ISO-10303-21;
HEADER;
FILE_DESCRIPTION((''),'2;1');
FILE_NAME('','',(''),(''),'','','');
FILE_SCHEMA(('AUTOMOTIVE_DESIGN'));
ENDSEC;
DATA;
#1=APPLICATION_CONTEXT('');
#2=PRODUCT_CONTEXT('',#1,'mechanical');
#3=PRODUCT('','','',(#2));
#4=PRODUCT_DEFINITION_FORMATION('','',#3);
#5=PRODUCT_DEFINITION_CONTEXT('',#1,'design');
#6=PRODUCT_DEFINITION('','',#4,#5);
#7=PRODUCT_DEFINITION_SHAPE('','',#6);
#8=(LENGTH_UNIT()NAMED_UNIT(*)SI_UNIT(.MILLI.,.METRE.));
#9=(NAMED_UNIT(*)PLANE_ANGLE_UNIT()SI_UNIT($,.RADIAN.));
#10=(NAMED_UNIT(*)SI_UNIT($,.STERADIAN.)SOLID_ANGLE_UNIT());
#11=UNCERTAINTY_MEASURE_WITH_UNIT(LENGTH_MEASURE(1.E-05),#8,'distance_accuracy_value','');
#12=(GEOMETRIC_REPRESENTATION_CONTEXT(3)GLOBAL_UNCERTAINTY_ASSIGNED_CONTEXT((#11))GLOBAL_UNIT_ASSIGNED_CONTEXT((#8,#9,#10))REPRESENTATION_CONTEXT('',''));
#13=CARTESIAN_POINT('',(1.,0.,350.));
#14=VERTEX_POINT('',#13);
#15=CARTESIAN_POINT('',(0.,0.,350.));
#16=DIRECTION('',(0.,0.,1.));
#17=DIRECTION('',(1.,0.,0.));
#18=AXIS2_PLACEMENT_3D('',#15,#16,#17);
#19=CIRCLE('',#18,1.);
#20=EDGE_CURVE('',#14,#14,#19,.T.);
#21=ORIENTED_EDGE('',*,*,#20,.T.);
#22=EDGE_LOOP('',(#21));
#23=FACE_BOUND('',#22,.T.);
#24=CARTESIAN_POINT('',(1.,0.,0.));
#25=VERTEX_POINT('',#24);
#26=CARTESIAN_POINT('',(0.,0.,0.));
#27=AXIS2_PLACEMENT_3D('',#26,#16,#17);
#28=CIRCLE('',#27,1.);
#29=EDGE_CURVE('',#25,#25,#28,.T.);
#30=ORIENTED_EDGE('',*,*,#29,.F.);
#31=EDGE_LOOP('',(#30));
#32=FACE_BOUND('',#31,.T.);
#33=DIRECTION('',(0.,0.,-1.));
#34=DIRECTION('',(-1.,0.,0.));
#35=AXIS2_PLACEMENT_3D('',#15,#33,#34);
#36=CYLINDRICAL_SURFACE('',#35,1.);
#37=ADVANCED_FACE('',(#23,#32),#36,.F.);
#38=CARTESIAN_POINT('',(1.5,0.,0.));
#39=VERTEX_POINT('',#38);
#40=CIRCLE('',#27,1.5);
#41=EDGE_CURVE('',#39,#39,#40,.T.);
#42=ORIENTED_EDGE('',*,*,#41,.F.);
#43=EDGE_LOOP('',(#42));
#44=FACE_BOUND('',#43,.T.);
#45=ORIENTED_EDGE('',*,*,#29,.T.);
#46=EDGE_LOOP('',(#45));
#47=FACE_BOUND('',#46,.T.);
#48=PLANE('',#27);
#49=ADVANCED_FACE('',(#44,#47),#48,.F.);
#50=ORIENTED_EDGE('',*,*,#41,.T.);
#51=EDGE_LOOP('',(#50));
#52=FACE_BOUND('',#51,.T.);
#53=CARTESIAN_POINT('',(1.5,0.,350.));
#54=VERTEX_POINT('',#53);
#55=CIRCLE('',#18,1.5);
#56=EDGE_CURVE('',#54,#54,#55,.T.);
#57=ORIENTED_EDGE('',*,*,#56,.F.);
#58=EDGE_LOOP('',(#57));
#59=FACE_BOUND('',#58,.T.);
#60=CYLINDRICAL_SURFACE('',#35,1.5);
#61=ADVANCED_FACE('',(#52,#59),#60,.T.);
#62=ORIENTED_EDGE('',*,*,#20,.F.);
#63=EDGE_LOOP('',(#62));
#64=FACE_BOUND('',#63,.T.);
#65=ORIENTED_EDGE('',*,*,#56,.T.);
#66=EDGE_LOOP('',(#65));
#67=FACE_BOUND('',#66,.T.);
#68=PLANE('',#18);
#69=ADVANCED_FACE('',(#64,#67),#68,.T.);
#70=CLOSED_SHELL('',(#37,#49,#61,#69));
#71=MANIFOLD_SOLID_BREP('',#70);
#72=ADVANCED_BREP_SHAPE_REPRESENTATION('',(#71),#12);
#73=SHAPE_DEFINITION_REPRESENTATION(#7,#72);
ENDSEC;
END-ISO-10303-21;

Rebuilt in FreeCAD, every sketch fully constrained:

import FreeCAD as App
import Part
import Sketcher

V = App.Vector
Q = App.Units.Quantity

doc = App.newDocument("Part")
body = doc.addObject("PartDesign::Body", "Body")

sketch1 = body.newObject("Sketcher::SketchObject", "Sketch")
sketch1.AttachmentSupport = (doc.getObject("XY_Plane"), [""])
sketch1.MapMode = "FlatFace"
sketch1.addGeometry(Part.Circle(V(0, 0, 0), V(0, 0, 1), 1.5), False)
sketch1.addGeometry(Part.Circle(V(0, 0, 0), V(0, 0, 1), 1), False)
sketch1.addConstraint(Sketcher.Constraint("Coincident", 0, 3, -1, 1))
sketch1.addConstraint(Sketcher.Constraint("Coincident", 1, 3, -1, 1))
sketch1.addConstraint(Sketcher.Constraint("Diameter", 0, Q("3 mm")))
sketch1.addConstraint(Sketcher.Constraint("Diameter", 1, Q("2 mm")))
pad1 = body.newObject("PartDesign::Pad", "Pad")
pad1.Profile = sketch1
pad1.Length = 350

doc.recompute()
